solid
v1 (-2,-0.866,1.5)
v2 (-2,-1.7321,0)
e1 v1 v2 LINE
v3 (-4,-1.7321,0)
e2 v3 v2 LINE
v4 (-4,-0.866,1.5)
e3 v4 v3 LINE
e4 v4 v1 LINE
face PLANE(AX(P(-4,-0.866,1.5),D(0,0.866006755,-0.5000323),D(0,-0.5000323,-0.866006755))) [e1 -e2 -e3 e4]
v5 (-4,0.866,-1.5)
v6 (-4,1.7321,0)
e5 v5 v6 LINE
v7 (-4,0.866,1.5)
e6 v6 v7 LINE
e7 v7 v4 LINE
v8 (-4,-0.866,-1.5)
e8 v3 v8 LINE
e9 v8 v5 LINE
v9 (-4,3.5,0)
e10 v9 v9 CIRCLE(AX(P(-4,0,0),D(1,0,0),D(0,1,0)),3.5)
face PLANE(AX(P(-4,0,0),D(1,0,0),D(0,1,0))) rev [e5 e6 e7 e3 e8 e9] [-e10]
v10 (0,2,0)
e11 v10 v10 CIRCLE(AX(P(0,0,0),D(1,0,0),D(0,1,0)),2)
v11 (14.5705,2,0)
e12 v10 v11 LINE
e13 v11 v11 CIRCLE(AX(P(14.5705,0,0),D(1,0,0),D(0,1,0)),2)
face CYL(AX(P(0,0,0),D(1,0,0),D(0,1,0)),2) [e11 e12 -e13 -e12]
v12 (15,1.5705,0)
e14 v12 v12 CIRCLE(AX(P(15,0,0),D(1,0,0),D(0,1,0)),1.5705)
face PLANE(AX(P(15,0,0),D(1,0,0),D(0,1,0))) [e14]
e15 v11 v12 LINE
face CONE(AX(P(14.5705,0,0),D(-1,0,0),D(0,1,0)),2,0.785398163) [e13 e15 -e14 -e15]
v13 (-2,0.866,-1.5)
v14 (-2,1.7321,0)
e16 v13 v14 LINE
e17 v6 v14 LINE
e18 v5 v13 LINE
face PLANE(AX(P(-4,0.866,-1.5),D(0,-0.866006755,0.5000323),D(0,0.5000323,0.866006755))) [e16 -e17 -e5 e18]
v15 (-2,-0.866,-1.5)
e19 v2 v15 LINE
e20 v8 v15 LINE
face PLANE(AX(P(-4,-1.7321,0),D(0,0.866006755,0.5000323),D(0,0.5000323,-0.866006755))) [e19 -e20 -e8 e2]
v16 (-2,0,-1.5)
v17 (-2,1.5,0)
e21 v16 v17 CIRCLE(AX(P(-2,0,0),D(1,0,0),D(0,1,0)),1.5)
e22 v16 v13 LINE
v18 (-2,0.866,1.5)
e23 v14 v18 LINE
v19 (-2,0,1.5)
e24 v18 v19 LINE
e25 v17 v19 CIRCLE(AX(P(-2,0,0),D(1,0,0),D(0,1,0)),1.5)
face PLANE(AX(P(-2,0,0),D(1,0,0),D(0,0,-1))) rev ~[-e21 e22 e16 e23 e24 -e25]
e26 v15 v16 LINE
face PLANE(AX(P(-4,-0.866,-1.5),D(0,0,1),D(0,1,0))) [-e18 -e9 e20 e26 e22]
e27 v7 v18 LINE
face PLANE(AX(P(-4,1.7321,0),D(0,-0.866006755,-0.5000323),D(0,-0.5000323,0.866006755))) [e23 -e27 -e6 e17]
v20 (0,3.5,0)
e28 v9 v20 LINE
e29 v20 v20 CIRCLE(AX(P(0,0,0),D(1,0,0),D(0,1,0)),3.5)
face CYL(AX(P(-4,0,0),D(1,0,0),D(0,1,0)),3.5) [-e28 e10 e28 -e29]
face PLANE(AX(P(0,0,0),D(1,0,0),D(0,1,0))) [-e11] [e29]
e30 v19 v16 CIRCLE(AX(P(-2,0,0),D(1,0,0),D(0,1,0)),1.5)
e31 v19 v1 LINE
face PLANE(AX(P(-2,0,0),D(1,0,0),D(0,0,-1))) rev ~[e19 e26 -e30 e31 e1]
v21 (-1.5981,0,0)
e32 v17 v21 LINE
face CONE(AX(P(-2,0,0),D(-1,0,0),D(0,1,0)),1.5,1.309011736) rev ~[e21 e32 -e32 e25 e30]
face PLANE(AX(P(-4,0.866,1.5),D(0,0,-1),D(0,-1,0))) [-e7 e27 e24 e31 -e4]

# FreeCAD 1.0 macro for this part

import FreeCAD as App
import Part
import Sketcher
from FreeCAD import Vector
Q = App.Units.Quantity


def add_polygon(sketch, points):
    """Adds a closed chain of lines whose ends are joined by coincident constraints."""
    first, n = sketch.GeometryCount, len(points)
    for a, b in zip(points, points[1:] + points[:1]):
        sketch.addGeometry(Part.LineSegment(App.Vector(*a, 0), App.Vector(*b, 0)), False)
    for i in range(n):
        sketch.addConstraint(Sketcher.Constraint("Coincident", first + i, 2, first + (i + 1) % n, 1))

doc = App.newDocument("Part")
body = doc.addObject("PartDesign::Body", "Body")

# Sketch on XY plane
sketch1 = body.newObject("Sketcher::SketchObject", "Sketch")
sketch1.AttachmentSupport = (doc.getObject("XY_Plane"), [""])
sketch1.MapMode = "FlatFace"
add_polygon(sketch1, [(-4, 0), (15, 0), (15, 1.5705), (14.5705, 2), (0, 2), (0, 3.5), (-4, 3.5)])  # lines 0-6
sketch1.addConstraint([
    Sketcher.Constraint("Horizontal", 0),
    Sketcher.Constraint("Vertical", 1),
    Sketcher.Constraint("Horizontal", 3),
    Sketcher.Constraint("Vertical", 4),
    Sketcher.Constraint("Horizontal", 5),
    Sketcher.Constraint("Vertical", 6),
    Sketcher.Constraint("PointOnObject", 0, 2, -1),
    Sketcher.Constraint("PointOnObject", 3, 2, -2),
    Sketcher.Constraint("DistanceX", 0, 1, 0, 2, Q("19 mm")),
    Sketcher.Constraint("DistanceX", 5, 2, 5, 1, Q("4 mm")),
    Sketcher.Constraint("Angle", 2, Q("135 deg")),
    Sketcher.Constraint("DistanceY", 4, 1, 4, 2, Q("1.5 mm")),
    Sketcher.Constraint("DistanceY", 6, 2, 6, 1, Q("3.5 mm")),
    Sketcher.Constraint("DistanceX", 3, 2, 3, 1, Q("14.5705 mm")),
])
revolution = body.newObject("PartDesign::Revolution", "Revolution")
revolution.Profile = sketch1
revolution.ReferenceAxis = (sketch1, ["H_Axis"])
revolution.Angle = 360

# Sketch on XY plane
sketch2 = body.newObject("Sketcher::SketchObject", "Sketch001")
sketch2.AttachmentSupport = (doc.getObject("XY_Plane"), [""])
sketch2.MapMode = "FlatFace"
add_polygon(sketch2, [(-4, 0), (-1.5981, 0), (-2, 1.5), (-4, 1.5)])  # lines 0-3
sketch2.addConstraint([
    Sketcher.Constraint("Horizontal", 0),
    Sketcher.Constraint("Horizontal", 2),
    Sketcher.Constraint("Vertical", 3),
    Sketcher.Constraint("PointOnObject", 0, 2, -1),
    Sketcher.Constraint("DistanceX", 2, 2, 2, 1, Q("2 mm")),
    Sketcher.Constraint("Angle", 1, Q("104.9992 deg")),
    Sketcher.Constraint("DistanceY", 3, 2, 3, 1, Q("1.5 mm")),
    Sketcher.Constraint("DistanceX", 1, 2, -1, 1, Q("2 mm")),
])
groove = body.newObject("PartDesign::Groove", "Groove")
groove.Profile = sketch2
groove.ReferenceAxis = (sketch2, ["H_Axis"])
groove.Angle = 360

# Sketch on YZ plane
sketch3 = body.newObject("Sketcher::SketchObject", "Sketch002")
sketch3.AttachmentSupport = (doc.getObject("YZ_Plane"), [""])
sketch3.MapMode = "FlatFace"
sketch3.AttachmentOffset = App.Placement(Vector(0, 0, -4), App.Rotation())
add_polygon(sketch3, [(1.7321, 0), (0.866, 1.5), (-0.866, 1.5), (-1.7321, 0), (-0.866, -1.5), (0.866, -1.5)])  # lines 0-5
sketch3.addConstraint([
    Sketcher.Constraint("Horizontal", 1),
    Sketcher.Constraint("Horizontal", 4),
    Sketcher.Constraint("Symmetric", 0, 2, 3, 2, -1, 1),
    Sketcher.Constraint("Symmetric", 2, 2, 5, 2, -1, 1),
    Sketcher.Constraint("PointOnObject", 2, 2, -1),
    Sketcher.Constraint("Parallel", 2, 5),
    Sketcher.Constraint("Vertical", 1, 2, 3, 2),
    Sketcher.Constraint("DistanceY", 3, 2, 1, 2, Q("3 mm")),
    Sketcher.Constraint("DistanceX", 1, 2, 1, 1, Q("1.732 mm")),
    Sketcher.Constraint("Distance", 0, Q("1.732 mm")),
])
pocket1 = body.newObject("PartDesign::Pocket", "Pocket")
pocket1.Profile = sketch3
pocket1.Length = 2
pocket1.Reversed = True

doc.recompute()
